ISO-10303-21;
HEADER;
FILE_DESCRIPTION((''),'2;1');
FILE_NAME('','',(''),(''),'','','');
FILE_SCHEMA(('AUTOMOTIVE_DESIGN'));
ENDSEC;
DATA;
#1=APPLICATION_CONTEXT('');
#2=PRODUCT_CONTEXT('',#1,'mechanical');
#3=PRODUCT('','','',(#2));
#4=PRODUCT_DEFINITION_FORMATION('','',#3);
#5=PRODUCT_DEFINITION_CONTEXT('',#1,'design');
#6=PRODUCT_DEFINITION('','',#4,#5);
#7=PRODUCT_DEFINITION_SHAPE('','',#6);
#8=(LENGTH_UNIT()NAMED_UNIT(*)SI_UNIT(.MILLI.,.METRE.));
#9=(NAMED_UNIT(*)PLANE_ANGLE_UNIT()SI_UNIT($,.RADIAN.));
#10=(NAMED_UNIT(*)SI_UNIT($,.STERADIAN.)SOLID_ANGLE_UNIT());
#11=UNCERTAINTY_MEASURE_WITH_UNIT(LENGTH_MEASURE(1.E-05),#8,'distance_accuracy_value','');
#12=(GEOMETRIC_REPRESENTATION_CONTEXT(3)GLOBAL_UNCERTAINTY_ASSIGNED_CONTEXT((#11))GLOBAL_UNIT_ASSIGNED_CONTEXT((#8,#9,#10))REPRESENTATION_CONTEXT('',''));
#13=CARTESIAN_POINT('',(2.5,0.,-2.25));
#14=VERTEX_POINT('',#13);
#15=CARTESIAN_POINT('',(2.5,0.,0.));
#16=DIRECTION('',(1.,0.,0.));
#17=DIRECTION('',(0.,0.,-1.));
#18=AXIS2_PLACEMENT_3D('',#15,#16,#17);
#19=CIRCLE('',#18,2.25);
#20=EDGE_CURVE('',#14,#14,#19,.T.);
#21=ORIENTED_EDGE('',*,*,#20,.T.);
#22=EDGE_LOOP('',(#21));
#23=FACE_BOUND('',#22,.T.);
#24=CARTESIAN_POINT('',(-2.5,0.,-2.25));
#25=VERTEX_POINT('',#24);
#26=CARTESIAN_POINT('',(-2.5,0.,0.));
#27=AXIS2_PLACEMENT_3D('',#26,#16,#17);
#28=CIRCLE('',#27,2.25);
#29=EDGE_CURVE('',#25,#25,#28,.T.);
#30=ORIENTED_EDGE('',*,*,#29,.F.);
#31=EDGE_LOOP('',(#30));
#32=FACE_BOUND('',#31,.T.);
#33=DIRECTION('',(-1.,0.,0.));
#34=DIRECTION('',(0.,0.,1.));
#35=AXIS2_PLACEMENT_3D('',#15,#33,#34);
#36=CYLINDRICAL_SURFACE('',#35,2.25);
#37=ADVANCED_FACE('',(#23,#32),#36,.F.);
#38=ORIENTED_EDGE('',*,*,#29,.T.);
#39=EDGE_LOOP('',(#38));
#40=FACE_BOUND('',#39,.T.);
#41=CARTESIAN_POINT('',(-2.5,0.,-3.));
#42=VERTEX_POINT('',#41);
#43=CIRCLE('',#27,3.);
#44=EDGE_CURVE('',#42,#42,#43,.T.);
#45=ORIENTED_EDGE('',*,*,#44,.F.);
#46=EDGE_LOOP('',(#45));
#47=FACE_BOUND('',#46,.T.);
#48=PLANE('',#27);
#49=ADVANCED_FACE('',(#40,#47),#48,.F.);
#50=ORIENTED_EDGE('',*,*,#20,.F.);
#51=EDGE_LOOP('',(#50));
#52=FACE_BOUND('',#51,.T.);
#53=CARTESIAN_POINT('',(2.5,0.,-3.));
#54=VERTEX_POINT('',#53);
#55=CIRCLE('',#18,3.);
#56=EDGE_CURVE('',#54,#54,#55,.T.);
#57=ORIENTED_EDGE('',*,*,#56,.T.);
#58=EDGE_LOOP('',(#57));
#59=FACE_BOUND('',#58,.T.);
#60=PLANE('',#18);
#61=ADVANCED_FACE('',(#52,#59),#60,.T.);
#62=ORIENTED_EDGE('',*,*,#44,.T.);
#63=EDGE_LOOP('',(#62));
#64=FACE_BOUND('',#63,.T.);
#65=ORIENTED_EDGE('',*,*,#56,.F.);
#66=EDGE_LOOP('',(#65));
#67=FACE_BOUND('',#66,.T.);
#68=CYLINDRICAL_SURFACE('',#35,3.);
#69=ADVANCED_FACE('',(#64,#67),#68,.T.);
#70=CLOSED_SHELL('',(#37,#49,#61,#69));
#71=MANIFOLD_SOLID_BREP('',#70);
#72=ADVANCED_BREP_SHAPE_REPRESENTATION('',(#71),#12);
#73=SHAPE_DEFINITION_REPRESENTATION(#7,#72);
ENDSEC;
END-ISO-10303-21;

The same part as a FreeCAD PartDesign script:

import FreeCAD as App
import Part
import Sketcher
from FreeCAD import Vector
Q = App.Units.Quantity

doc = App.newDocument("Part")
body = doc.addObject("PartDesign::Body", "Body")

# Sketch on YZ plane
sketch1 = doc.addObject("Sketcher::SketchObject", "Sketch")
body.addObject(sketch1)
sketch1.AttachmentSupport = (doc.YZ_Plane, [""])
sketch1.MapMode = "FlatFace"
sketch1.addGeometry([
    Part.Circle(Vector(0, 0, 0), Vector(0, 0, 1), 3),
    Part.Circle(Vector(0, 0, 0), Vector(0, 0, 1), 2.2),
], False)
sketch1.addConstraint([
    Sketcher.Constraint("Coincident", 0, 3, -1, 1),
    Sketcher.Constraint("Coincident", 1, 3, -1, 1),
    Sketcher.Constraint("Diameter", 0, Q("6 mm")),
    Sketcher.Constraint("Diameter", 1, Q("4.5 mm")),
])
pad1 = doc.addObject("PartDesign::Pad", "Pad")
body.addObject(pad1)
pad1.Profile = sketch1
pad1.Length = 5
pad1.Midplane = True

doc.recompute()
